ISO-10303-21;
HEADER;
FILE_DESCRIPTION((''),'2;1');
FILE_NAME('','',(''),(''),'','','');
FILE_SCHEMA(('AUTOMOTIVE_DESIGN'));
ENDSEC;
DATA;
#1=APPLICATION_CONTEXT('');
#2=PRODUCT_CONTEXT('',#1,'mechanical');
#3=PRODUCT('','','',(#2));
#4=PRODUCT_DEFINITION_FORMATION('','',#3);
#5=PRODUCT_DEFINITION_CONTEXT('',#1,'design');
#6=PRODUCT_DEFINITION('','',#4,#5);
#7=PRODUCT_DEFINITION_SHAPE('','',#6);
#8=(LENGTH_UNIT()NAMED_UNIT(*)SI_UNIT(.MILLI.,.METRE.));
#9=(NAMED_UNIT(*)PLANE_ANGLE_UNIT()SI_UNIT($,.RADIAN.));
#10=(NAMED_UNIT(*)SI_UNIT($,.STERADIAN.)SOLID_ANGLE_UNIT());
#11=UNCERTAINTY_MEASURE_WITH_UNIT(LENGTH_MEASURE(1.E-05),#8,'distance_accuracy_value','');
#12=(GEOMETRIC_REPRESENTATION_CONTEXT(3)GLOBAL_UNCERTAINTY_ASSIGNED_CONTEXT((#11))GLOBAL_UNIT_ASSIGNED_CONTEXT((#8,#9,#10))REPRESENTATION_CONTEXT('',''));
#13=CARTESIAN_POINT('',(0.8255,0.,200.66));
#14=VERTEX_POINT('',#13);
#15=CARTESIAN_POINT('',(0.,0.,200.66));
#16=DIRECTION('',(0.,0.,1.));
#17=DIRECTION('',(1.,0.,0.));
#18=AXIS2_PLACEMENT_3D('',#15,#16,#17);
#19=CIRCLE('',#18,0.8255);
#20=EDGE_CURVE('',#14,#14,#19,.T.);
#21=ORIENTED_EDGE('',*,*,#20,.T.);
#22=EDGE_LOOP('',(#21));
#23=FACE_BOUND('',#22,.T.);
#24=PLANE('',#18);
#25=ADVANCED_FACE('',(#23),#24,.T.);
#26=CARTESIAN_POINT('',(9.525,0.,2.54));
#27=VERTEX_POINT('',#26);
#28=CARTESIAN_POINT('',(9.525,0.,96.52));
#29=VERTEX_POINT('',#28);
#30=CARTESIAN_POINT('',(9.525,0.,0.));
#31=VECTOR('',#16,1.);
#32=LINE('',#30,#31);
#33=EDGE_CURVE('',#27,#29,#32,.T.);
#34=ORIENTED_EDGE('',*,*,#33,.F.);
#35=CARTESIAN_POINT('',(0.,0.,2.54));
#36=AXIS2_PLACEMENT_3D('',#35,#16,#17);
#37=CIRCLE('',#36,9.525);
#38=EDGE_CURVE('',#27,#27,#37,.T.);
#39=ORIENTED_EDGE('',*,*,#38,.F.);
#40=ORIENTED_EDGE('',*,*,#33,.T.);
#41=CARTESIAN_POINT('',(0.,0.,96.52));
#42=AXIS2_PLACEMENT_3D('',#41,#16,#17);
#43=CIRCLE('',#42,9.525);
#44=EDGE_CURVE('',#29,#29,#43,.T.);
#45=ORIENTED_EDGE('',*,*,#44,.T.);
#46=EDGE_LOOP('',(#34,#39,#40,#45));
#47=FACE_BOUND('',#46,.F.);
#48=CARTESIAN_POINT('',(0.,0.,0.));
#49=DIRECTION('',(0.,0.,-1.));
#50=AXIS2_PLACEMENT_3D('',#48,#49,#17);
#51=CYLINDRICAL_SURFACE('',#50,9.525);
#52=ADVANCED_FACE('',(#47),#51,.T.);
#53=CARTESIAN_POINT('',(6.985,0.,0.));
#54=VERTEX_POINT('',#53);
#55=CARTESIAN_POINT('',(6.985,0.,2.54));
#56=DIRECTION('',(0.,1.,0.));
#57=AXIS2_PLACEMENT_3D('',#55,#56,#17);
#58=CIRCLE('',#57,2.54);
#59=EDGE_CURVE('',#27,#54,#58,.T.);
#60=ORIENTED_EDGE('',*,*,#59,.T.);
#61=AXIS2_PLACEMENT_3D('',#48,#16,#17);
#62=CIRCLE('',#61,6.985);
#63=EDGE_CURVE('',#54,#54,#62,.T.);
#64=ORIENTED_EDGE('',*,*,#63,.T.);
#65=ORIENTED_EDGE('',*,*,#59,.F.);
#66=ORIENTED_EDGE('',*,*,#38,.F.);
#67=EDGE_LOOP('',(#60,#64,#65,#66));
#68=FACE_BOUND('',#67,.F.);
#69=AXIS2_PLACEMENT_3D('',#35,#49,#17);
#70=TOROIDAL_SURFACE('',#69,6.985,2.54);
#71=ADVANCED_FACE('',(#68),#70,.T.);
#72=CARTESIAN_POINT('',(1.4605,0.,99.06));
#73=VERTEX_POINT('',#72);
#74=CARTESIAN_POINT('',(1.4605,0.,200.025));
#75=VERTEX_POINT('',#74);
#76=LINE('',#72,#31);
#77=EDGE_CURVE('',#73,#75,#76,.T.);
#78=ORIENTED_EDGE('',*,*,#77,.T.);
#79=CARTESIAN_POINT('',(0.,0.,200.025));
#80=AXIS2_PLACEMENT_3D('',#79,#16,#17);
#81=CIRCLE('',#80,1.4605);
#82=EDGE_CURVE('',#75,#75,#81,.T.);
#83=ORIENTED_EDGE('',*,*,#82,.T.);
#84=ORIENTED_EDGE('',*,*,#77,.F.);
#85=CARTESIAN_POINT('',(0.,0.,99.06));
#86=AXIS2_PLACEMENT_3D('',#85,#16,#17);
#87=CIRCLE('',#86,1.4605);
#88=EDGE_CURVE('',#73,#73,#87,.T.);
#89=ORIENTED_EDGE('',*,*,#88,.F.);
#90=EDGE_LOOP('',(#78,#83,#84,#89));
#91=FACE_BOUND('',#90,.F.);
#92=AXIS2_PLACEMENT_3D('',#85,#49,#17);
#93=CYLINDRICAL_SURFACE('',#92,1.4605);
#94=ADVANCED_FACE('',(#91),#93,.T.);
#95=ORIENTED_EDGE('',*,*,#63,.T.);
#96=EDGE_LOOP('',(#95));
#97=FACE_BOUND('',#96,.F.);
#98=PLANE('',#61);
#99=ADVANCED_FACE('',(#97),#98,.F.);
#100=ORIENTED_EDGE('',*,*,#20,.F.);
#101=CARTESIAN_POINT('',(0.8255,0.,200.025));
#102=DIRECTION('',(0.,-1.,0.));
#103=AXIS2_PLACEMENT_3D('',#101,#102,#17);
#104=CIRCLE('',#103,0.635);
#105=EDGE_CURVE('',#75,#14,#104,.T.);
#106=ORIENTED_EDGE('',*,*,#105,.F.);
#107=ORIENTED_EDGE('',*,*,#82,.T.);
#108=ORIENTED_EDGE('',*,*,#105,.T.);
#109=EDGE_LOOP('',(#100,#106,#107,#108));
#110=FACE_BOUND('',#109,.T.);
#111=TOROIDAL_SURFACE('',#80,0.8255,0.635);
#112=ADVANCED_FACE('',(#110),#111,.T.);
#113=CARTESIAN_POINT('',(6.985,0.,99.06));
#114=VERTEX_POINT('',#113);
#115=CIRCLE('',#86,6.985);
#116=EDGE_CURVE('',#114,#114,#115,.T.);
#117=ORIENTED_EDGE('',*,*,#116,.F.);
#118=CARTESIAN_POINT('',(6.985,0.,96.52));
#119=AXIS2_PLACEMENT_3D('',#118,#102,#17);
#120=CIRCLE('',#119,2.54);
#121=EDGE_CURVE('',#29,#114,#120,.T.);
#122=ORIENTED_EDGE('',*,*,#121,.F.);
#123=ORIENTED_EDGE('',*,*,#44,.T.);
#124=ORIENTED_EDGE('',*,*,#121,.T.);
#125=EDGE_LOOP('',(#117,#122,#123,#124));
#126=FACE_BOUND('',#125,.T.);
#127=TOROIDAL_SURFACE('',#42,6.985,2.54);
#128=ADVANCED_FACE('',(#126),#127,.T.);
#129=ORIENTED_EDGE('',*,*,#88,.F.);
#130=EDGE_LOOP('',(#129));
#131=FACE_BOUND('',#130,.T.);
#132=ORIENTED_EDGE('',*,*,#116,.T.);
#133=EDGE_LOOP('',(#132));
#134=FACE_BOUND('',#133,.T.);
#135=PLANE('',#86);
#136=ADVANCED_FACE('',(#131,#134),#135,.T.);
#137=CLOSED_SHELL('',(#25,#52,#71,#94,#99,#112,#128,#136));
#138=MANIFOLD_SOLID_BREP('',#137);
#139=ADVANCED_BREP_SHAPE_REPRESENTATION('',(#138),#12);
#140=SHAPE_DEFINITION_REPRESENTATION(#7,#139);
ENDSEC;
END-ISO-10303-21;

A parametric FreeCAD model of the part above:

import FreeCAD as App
import Part
import Sketcher
Q = App.Units.Quantity


def edges_at(feature, points):
    """Names of the edges that pass closest to the given points."""
    edges = feature.Shape.Edges
    near = lambda p: min(range(len(edges)), key=lambda i: edges[i].distToShape(Part.Vertex(*p))[0])
    return sorted({f"Edge{near(p) + 1}" for p in points})

doc = App.newDocument("Part")
body = doc.addObject("PartDesign::Body", "Body")

sketch1 = body.newObject("Sketcher::SketchObject", "Sketch")
sketch1.AttachmentSupport = (doc.getObject("XY_Plane"), [""])
sketch1.MapMode = "FlatFace"
sketch1.addGeometry(Part.Circle(App.Vector(0, 0, 0), App.Vector(0, 0, 1), 9.525), False)
sketch1.addConstraint([
    Sketcher.Constraint("Coincident", 0, 3, -1, 1),
    Sketcher.Constraint("Diameter", 0, Q("0.75 in")),
])
pad1 = body.newObject("PartDesign::Pad", "Pad")
pad1.Profile = sketch1
pad1.Length = Q("3.9 in")

sketch2 = body.newObject("Sketcher::SketchObject", "Sketch001")
sketch2.AttachmentSupport = (doc.getObject("XY_Plane"), [""])
sketch2.MapMode = "FlatFace"
sketch2.AttachmentOffset = App.Placement(App.Vector(0, 0, 3.9 * 25.4), App.Rotation())
sketch2.addGeometry(Part.Circle(App.Vector(0, 0, 0), App.Vector(0, 0, 1), 1.4605), False)
sketch2.addConstraint([
    Sketcher.Constraint("Coincident", 0, 3, -1, 1),
    Sketcher.Constraint("Diameter", 0, Q("0.115 in")),
])
pad2 = body.newObject("PartDesign::Pad", "Pad001")
pad2.Profile = sketch2
pad2.Length = Q("4 in")
doc.recompute()

fillet = body.newObject("PartDesign::Fillet", "Fillet")
fillet.Base = (pad2, edges_at(pad2, [(-1.46, 0, 200.66)]))
fillet.Radius = Q("0.025 in")
doc.recompute()

fillet2 = body.newObject("PartDesign::Fillet", "Fillet001")
fillet2.Base = (fillet, edges_at(fillet, [(-9.525, 0, 0)]))
fillet2.Radius = Q("0.1 in")
doc.recompute()

fillet3 = body.newObject("PartDesign::Fillet", "Fillet002")
fillet3.Base = (fillet2, edges_at(fillet2, [(-9.525, 0, 99.06)]))
fillet3.Radius = Q("0.1 in")

doc.recompute()
